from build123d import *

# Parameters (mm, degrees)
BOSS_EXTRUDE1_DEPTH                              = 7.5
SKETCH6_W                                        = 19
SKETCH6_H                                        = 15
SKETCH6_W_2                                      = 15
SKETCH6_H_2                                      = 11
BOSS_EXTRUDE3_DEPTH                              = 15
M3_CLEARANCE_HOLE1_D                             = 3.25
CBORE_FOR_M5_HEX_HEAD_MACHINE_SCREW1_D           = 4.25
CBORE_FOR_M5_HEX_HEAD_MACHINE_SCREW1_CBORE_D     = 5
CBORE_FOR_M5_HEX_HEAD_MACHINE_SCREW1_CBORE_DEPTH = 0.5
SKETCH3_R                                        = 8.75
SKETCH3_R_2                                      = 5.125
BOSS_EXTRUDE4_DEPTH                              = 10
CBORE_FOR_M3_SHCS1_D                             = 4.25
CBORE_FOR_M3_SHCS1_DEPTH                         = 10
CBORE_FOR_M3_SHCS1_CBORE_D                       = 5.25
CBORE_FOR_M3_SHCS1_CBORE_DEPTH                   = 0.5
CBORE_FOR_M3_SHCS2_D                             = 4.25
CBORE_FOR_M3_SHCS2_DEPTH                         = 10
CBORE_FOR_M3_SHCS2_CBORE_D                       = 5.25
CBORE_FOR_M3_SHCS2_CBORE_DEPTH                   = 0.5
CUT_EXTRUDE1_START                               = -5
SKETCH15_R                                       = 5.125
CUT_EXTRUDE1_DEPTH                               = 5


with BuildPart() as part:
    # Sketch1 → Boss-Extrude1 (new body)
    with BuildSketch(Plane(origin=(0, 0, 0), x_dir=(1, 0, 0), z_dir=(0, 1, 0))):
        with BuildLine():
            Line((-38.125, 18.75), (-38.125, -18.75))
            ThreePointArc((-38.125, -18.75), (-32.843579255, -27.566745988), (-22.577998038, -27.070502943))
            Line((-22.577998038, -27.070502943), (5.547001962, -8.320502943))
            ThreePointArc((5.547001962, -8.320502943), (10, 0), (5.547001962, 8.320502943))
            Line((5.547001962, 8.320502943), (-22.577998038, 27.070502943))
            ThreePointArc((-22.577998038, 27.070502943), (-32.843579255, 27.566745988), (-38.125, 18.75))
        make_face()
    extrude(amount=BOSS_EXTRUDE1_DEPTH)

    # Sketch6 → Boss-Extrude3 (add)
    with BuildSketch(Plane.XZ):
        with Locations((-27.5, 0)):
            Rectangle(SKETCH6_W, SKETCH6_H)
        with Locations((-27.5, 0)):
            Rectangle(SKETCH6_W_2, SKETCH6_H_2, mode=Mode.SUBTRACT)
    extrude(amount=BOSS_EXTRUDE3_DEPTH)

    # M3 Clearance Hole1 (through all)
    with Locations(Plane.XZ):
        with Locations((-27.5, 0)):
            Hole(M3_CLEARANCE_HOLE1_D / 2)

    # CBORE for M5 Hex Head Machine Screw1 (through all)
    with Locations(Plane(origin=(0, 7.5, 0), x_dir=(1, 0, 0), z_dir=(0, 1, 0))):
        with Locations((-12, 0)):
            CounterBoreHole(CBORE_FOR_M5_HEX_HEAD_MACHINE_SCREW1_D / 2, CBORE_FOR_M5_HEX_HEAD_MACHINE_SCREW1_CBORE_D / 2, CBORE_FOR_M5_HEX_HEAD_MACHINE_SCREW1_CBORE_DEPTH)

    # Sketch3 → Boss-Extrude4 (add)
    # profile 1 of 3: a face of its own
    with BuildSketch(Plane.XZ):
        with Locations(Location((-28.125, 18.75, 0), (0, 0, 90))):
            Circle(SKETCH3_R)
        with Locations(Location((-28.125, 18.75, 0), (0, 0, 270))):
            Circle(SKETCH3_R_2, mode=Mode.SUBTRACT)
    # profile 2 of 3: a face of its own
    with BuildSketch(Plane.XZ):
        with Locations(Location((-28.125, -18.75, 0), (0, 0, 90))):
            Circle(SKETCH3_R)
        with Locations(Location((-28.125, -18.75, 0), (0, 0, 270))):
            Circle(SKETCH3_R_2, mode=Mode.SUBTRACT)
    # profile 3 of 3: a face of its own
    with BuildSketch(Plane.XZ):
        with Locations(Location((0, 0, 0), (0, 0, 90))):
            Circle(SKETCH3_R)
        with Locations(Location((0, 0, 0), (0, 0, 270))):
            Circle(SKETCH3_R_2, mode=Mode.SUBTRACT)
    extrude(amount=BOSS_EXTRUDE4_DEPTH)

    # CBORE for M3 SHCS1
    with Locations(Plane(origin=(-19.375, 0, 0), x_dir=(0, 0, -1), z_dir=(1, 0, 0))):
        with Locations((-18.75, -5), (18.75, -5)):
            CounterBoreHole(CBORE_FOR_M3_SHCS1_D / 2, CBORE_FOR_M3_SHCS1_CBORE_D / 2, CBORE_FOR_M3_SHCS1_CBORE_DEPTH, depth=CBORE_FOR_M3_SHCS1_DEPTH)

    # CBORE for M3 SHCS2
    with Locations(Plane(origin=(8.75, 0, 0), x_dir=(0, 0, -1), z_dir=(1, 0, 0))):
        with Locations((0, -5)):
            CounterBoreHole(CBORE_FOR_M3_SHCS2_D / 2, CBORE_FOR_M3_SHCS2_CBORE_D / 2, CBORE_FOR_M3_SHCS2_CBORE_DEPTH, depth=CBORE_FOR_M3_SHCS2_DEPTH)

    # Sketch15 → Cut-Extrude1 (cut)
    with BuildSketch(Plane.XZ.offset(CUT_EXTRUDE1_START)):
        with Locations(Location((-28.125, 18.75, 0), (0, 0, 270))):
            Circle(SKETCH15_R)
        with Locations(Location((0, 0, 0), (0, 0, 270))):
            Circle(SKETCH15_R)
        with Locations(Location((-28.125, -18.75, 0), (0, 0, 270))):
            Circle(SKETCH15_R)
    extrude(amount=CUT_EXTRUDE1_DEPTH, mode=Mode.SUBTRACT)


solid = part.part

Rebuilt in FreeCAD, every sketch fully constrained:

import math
import FreeCAD as App
import Part
import Sketcher

doc = App.newDocument("Part")
body = doc.addObject("PartDesign::Body", "Body")

# Sketch on XZ plane
sketch1 = body.newObject("Sketcher::SketchObject", "Sketch")
sketch1.AttachmentSupport = (doc.getObject("XZ_Plane"), [""])
sketch1.MapMode = "FlatFace"
sketch1.addGeometry([
    Part.LineSegment(App.Vector(-38, -19, 0), App.Vector(-38, 19, 0)),  # 0
    Part.ArcOfCircle(Part.Circle(App.Vector(-28, 19, 0), App.Vector(0, 0, 1), 10), math.radians(56), math.radians(180)),  # 1
    Part.LineSegment(App.Vector(-23, 27, 0), App.Vector(6, 8, 0)),  # 2
    Part.ArcOfCircle(Part.Circle(App.Vector(0, 0, 0), App.Vector(0, 0, 1), 10), math.radians(-56), math.radians(56)),  # 3
    Part.LineSegment(App.Vector(6, -8, 0), App.Vector(-23, -27, 0)),  # 4
    Part.ArcOfCircle(Part.Circle(App.Vector(-28, -19, 0), App.Vector(0, 0, 1), 10), math.radians(180), math.radians(304)),  # 5
], False)
sketch1.addConstraint([
    Sketcher.Constraint("Tangent", 0, 2, 1, 2),
    Sketcher.Constraint("Tangent", 1, 1, 2, 1),
    Sketcher.Constraint("Tangent", 2, 2, 3, 2),
    Sketcher.Constraint("Tangent", 3, 1, 4, 1),
    Sketcher.Constraint("Tangent", 4, 2, 5, 2),
    Sketcher.Constraint("Tangent", 5, 1, 0, 1),
    Sketcher.Constraint("Vertical", 0),
    Sketcher.Constraint("Coincident", 3, 3, -1, 1),
    Sketcher.Constraint("Equal", 1, 3),
    Sketcher.Constraint("Equal", 3, 5),
    Sketcher.Constraint("Vertical", 2, 2, 3, 1),
    Sketcher.Constraint("Radius", 1, 10.0),
    Sketcher.Constraint("DistanceY", 0, 1, 0, 2, 37.5),
    Sketcher.Constraint("DistanceX", 1, 3, -1, 1, 28.125),
])
pad1 = body.newObject("PartDesign::Pad", "Pad")
pad1.Profile = sketch1
pad1.Length = 7.5
pad1.Reversed = True

# Sketch on XZ plane
sketch2 = body.newObject("Sketcher::SketchObject", "Sketch001")
sketch2.AttachmentSupport = (doc.getObject("XZ_Plane"), [""])
sketch2.MapMode = "FlatFace"
sketch2.addGeometry([
    Part.LineSegment(App.Vector(-37, 8, 0), App.Vector(-37, -8, 0)),  # 0
    Part.LineSegment(App.Vector(-37, -8, 0), App.Vector(-18, -8, 0)),  # 1
    Part.LineSegment(App.Vector(-18, -8, 0), App.Vector(-18, 8, 0)),  # 2
    Part.LineSegment(App.Vector(-18, 8, 0), App.Vector(-37, 8, 0)),  # 3
    Part.LineSegment(App.Vector(-20, -6, 0), App.Vector(-35, -6, 0)),  # 4
    Part.LineSegment(App.Vector(-35, -6, 0), App.Vector(-35, 6, 0)),  # 5
    Part.LineSegment(App.Vector(-35, 6, 0), App.Vector(-20, 6, 0)),  # 6
    Part.LineSegment(App.Vector(-20, 6, 0), App.Vector(-20, -6, 0)),  # 7
], False)
sketch2.addConstraint([
    Sketcher.Constraint("Coincident", 0, 2, 1, 1),
    Sketcher.Constraint("Coincident", 1, 2, 2, 1),
    Sketcher.Constraint("Coincident", 2, 2, 3, 1),
    Sketcher.Constraint("Coincident", 3, 2, 0, 1),
    Sketcher.Constraint("Coincident", 4, 2, 5, 1),
    Sketcher.Constraint("Coincident", 5, 2, 6, 1),
    Sketcher.Constraint("Coincident", 6, 2, 7, 1),
    Sketcher.Constraint("Coincident", 7, 2, 4, 1),
    Sketcher.Constraint("Vertical", 0),
    Sketcher.Constraint("Horizontal", 1),
    Sketcher.Constraint("Vertical", 2),
    Sketcher.Constraint("Horizontal", 3),
    Sketcher.Constraint("Horizontal", 4),
    Sketcher.Constraint("Vertical", 5),
    Sketcher.Constraint("Horizontal", 6),
    Sketcher.Constraint("Vertical", 7),
    Sketcher.Constraint("Equal", 6, 0),
    Sketcher.Constraint("DistanceX", 1, 1, 1, 2, 19.0),
    Sketcher.Constraint("DistanceX", 4, 2, 4, 1, 15.0),
    Sketcher.Constraint("DistanceY", 5, 1, 5, 2, 11.0),
    Sketcher.Constraint("DistanceX", 0, 2, -1, 1, 37.0),
    Sketcher.Constraint("DistanceX", 4, 2, -1, 1, 35.0),
    Sketcher.Constraint("DistanceY", 0, 2, 4, 2, 2.0),
    Sketcher.Constraint("DistanceY", 0, 2, -1, 1, 7.5),
])
pad2 = body.newObject("PartDesign::Pad", "Pad001")
pad2.Profile = sketch2
pad2.Length = 15

# Sketch on XZ plane
sketch3 = body.newObject("Sketcher::SketchObject", "Sketch002")
sketch3.AttachmentSupport = (doc.getObject("XZ_Plane"), [""])
sketch3.MapMode = "FlatFace"
sketch3.addGeometry(Part.Circle(App.Vector(-27.5, 0, 0), App.Vector(0, 0, 1), 1.6), False)
sketch3.addConstraint([
    Sketcher.Constraint("PointOnObject", 0, 3, -1),
    Sketcher.Constraint("Diameter", 0, 3.25),
    Sketcher.Constraint("DistanceX", 0, 3, -1, 1, 27.5),
])
doc.recompute()
hole = body.newObject("PartDesign::Hole", "Hole")
hole.Profile = sketch3
hole.ThreadType = "None"
hole.Diameter = 3.25
hole.DepthType = "ThroughAll"

# Sketch on XZ plane
sketch4 = body.newObject("Sketcher::SketchObject", "Sketch003")
sketch4.AttachmentSupport = (doc.getObject("XZ_Plane"), [""])
sketch4.MapMode = "FlatFace"
sketch4.AttachmentOffset = App.Placement(App.Vector(0, 0, -7.5), App.Rotation())
sketch4.addGeometry(Part.Circle(App.Vector(-12, 0, 0), App.Vector(0, 0, 1), 2.1), False)
sketch4.addConstraint([
    Sketcher.Constraint("PointOnObject", 0, 3, -1),
    Sketcher.Constraint("Diameter", 0, 4.25),
    Sketcher.Constraint("DistanceX", 0, 3, -1, 1, 12.0),
])
doc.recompute()
hole2 = body.newObject("PartDesign::Hole", "Hole001")
hole2.Profile = sketch4
hole2.ThreadType = "None"
hole2.Diameter = 4.25
hole2.DepthType = "ThroughAll"
hole2.HoleCutType = "Counterbore"
hole2.HoleCutDiameter = 5
hole2.HoleCutDepth = 0.5
hole2.Reversed = True

# Sketch on XZ plane
sketch5 = body.newObject("Sketcher::SketchObject", "Sketch004")
sketch5.AttachmentSupport = (doc.getObject("XZ_Plane"), [""])
sketch5.MapMode = "FlatFace"
sketch5.addGeometry([
    Part.Circle(App.Vector(-28, 19, 0), App.Vector(0, 0, 1), 9),  # 0
    Part.Circle(App.Vector(-28, 19, 0), App.Vector(0, 0, 1), 5),  # 1
    Part.Circle(App.Vector(-28, -19, 0), App.Vector(0, 0, 1), 9),  # 2
    Part.Circle(App.Vector(-28, -19, 0), App.Vector(0, 0, 1), 5),  # 3
    Part.Circle(App.Vector(0, 0, 0), App.Vector(0, 0, 1), 9),  # 4
    Part.Circle(App.Vector(0, 0, 0), App.Vector(0, 0, 1), 5),  # 5
], False)
sketch5.addConstraint([
    Sketcher.Constraint("Coincident", 4, 3, -1, 1),
    Sketcher.Constraint("Coincident", 5, 3, -1, 1),
    Sketcher.Constraint("Coincident", 1, 3, 0, 3),
    Sketcher.Constraint("Coincident", 3, 3, 2, 3),
    Sketcher.Constraint("Equal", 0, 2),
    Sketcher.Constraint("Equal", 1, 3),
    Sketcher.Constraint("Equal", 2, 4),
    Sketcher.Constraint("Equal", 3, 5),
    Sketcher.Constraint("Symmetric", 0, 3, 2, 3, -1),
    Sketcher.Constraint("Diameter", 0, 17.5),
    Sketcher.Constraint("Diameter", 1, 10.25),
    Sketcher.Constraint("DistanceY", 2, 3, 0, 3, 37.5),
    Sketcher.Constraint("DistanceX", 0, 3, -1, 1, 28.125),
])
pad3 = body.newObject("PartDesign::Pad", "Pad002")
pad3.Profile = sketch5
pad3.Length = 10

# Sketch on YZ plane
sketch6 = body.newObject("Sketcher::SketchObject", "Sketch005")
sketch6.AttachmentSupport = (doc.getObject("YZ_Plane"), [""])
sketch6.MapMode = "FlatFace"
sketch6.AttachmentOffset = App.Placement(App.Vector(0, 0, -19.375), App.Rotation())
sketch6.addGeometry([
    Part.Circle(App.Vector(-5, 18.8, 0), App.Vector(0, 0, 1), 2.1),
    Part.Circle(App.Vector(-5, -18.8, 0), App.Vector(0, 0, 1), 2.1),
], False)
sketch6.addConstraint([
    Sketcher.Constraint("Equal", 0, 1),
    Sketcher.Constraint("Symmetric", 0, 3, 1, 3, -1),
    Sketcher.Constraint("Diameter", 0, 4.25),
    Sketcher.Constraint("DistanceX", 0, 3, -1, 1, 5.0),
    Sketcher.Constraint("DistanceY", 1, 3, 0, 3, 37.5),
])
doc.recompute()
hole3 = body.newObject("PartDesign::Hole", "Hole002")
hole3.Profile = sketch6
hole3.ThreadType = "None"
hole3.Diameter = 4.25
hole3.DepthType = "Dimension"
hole3.Depth = 10
hole3.DrillPoint = "Flat"
hole3.HoleCutType = "Counterbore"
hole3.HoleCutDiameter = 5.25
hole3.HoleCutDepth = 0.5

# Sketch on YZ plane
sketch7 = body.newObject("Sketcher::SketchObject", "Sketch006")
sketch7.AttachmentSupport = (doc.getObject("YZ_Plane"), [""])
sketch7.MapMode = "FlatFace"
sketch7.AttachmentOffset = App.Placement(App.Vector(0, 0, 8.75), App.Rotation())
sketch7.addGeometry(Part.Circle(App.Vector(-5, 0, 0), App.Vector(0, 0, 1), 2.1), False)
sketch7.addConstraint([
    Sketcher.Constraint("PointOnObject", 0, 3, -1),
    Sketcher.Constraint("Diameter", 0, 4.25),
    Sketcher.Constraint("DistanceX", 0, 3, -1, 1, 5.0),
])
doc.recompute()
hole4 = body.newObject("PartDesign::Hole", "Hole003")
hole4.Profile = sketch7
hole4.ThreadType = "None"
hole4.Diameter = 4.25
hole4.DepthType = "Dimension"
hole4.Depth = 10
hole4.DrillPoint = "Flat"
hole4.HoleCutType = "Counterbore"
hole4.HoleCutDiameter = 5.25
hole4.HoleCutDepth = 0.5

# Sketch on XZ plane
sketch8 = body.newObject("Sketcher::SketchObject", "Sketch007")
sketch8.AttachmentSupport = (doc.getObject("XZ_Plane"), [""])
sketch8.MapMode = "FlatFace"
sketch8.AttachmentOffset = App.Placement(App.Vector(0, 0, -5), App.Rotation())
sketch8.addGeometry([
    Part.Circle(App.Vector(-28, 19, 0), App.Vector(0, 0, 1), 5),
    Part.Circle(App.Vector(0, 0, 0), App.Vector(0, 0, 1), 5),
    Part.Circle(App.Vector(-28, -19, 0), App.Vector(0, 0, 1), 5),
], False)
sketch8.addConstraint([
    Sketcher.Constraint("Coincident", 1, 3, -1, 1),
    Sketcher.Constraint("Equal", 0, 1),
    Sketcher.Constraint("Equal", 1, 2),
    Sketcher.Constraint("Symmetric", 0, 3, 2, 3, -1),
    Sketcher.Constraint("Diameter", 0, 10.25),
    Sketcher.Constraint("DistanceY", 2, 3, 0, 3, 37.5),
    Sketcher.Constraint("DistanceX", 0, 3, -1, 1, 28.125),
])
pocket1 = body.newObject("PartDesign::Pocket", "Pocket")
pocket1.Profile = sketch8
pocket1.Length = 5
pocket1.Reversed = True

doc.recompute()
